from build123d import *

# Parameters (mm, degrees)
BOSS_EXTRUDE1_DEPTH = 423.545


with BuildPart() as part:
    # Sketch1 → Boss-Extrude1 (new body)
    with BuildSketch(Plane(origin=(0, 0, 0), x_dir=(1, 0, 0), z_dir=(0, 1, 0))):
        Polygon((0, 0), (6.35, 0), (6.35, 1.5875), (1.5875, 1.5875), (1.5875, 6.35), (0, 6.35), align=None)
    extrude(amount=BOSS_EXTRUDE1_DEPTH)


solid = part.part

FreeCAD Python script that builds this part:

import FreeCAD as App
import Part
import Sketcher
from FreeCAD import Vector
Q = App.Units.Quantity


def add_polygon(sketch, points):
    """Adds a closed chain of lines whose ends are joined by coincident constraints."""
    first, n = sketch.GeometryCount, len(points)
    for a, b in zip(points, points[1:] + points[:1]):
        sketch.addGeometry(Part.LineSegment(App.Vector(*a, 0), App.Vector(*b, 0)), False)
    for i in range(n):
        sketch.addConstraint(Sketcher.Constraint("Coincident", first + i, 2, first + (i + 1) % n, 1))

doc = App.newDocument("Part")
body = doc.addObject("PartDesign::Body", "Body")

sketch1 = body.newObject("Sketcher::SketchObject", "Sketch")
sketch1.AttachmentSupport = (doc.getObject("XZ_Plane"), [""])
sketch1.MapMode = "FlatFace"
add_polygon(sketch1, [(0, 0), (6.3, 0), (6.3, -1.6), (1.6, -1.6), (1.6, -6.3), (0, -6.3)])
sketch1.addConstraint([
    Sketcher.Constraint("Horizontal", 0),
    Sketcher.Constraint("Vertical", 1),
    Sketcher.Constraint("Horizontal", 2),
    Sketcher.Constraint("Vertical", 3),
    Sketcher.Constraint("Horizontal", 4),
    Sketcher.Constraint("Vertical", 5),
    Sketcher.Constraint("Coincident", 5, 2, -1, 1),
    Sketcher.Constraint("Equal", 4, 1),
    Sketcher.Constraint("Equal", 2, 3),
    Sketcher.Constraint("DistanceX", 0, 1, 0, 2, Q("0.25 in")),
    Sketcher.Constraint("DistanceX", 2, 2, 2, 1, Q("0.1875 in")),
])
pad1 = body.newObject("PartDesign::Pad", "Pad")
pad1.Profile = sketch1
pad1.Length = Q("16.675 in")
pad1.Reversed = True

doc.recompute()
